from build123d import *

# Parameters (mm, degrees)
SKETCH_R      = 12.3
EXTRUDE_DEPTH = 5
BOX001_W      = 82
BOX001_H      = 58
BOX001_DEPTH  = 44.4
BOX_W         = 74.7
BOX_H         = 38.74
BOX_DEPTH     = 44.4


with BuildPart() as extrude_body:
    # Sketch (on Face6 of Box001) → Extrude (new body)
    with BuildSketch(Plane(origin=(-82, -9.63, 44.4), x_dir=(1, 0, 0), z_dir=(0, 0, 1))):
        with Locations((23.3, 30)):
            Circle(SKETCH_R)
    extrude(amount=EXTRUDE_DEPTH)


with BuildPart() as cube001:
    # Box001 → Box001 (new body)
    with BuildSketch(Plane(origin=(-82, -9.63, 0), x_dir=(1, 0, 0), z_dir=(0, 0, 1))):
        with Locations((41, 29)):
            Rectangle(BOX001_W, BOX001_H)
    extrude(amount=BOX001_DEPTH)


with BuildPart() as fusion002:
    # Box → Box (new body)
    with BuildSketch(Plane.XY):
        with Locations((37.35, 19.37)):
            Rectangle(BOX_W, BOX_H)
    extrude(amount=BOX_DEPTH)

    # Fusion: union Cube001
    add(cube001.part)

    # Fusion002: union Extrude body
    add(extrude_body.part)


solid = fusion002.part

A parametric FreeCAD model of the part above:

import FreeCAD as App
import Part
import Sketcher

V = App.Vector
Q = App.Units.Quantity

doc = App.newDocument("Part")
params = doc.addObject("Spreadsheet::Sheet", "Params")
for row, (alias, value) in enumerate([
    ("sketch1_diameter", "24.6 mm"),
    ("pad1_length", "5 mm"),
    ("sketch2_width", "82 mm"),
    ("sketch2_height", "58 mm"),
    ("pad2_length", "44.4 mm"),
    ("sketch3_width", "74.7 mm"),
    ("sketch3_height", "38.74 mm"),
    ("pad3_length", "44.4 mm"),
], start=1):
    params.set(f"A{row}", alias)
    params.set(f"B{row}", "=" + value)
    params.setAlias(f"B{row}", alias)

body = doc.addObject("PartDesign::Body", "Body")

# Sketch on XY plane
sketch1 = doc.addObject("Sketcher::SketchObject", "Sketch")
body.addObject(sketch1)
sketch1.AttachmentSupport = (doc.XY_Plane, [""])
sketch1.MapMode = "FlatFace"
sketch1.AttachmentOffset = App.Placement(V(0, 0, 44.4), App.Rotation())
sketch1.addGeometry(Part.Circle(V(-59, 20, 0), V(0, 0, 1), 12), False)
sketch1.addConstraint([
    Sketcher.Constraint("Diameter", 0, Q("24.6 mm")),
    Sketcher.Constraint("DistanceX", 0, 3, -1, 1, Q("58.7 mm")),
    Sketcher.Constraint("DistanceY", -1, 1, 0, 3, Q("20.37 mm")),
])
sketch1.setExpression("Constraints[0]", "Params.sketch1_diameter")
pad1 = doc.addObject("PartDesign::Pad", "Pad")
body.addObject(pad1)
pad1.Profile = sketch1
pad1.setExpression("Length", "Params.pad1_length")
body2 = doc.addObject("PartDesign::Body", "Body001")

# Sketch on XY plane
sketch2 = doc.addObject("Sketcher::SketchObject", "Sketch001")
body2.addObject(sketch2)
sketch2.AttachmentSupport = (doc.getObject("XY_Plane001"), [""])
sketch2.MapMode = "FlatFace"
sketch2.addGeometry([
    Part.LineSegment(V(-82, 48, 0), V(-82, -10, 0)),
    Part.LineSegment(V(-82, -10, 0), V(0, -10, 0)),
    Part.LineSegment(V(0, -10, 0), V(0, 48, 0)),
    Part.LineSegment(V(0, 48, 0), V(-82, 48, 0)),
], False)
sketch2.addConstraint([
    Sketcher.Constraint("Coincident", 0, 2, 1, 1),
    Sketcher.Constraint("Coincident", 1, 2, 2, 1),
    Sketcher.Constraint("Coincident", 2, 2, 3, 1),
    Sketcher.Constraint("Coincident", 3, 2, 0, 1),
    Sketcher.Constraint("Vertical", 0),
    Sketcher.Constraint("Horizontal", 1),
    Sketcher.Constraint("Vertical", 2),
    Sketcher.Constraint("Horizontal", 3),
    Sketcher.Constraint("PointOnObject", 1, 2, -2),
    Sketcher.Constraint("DistanceX", 1, 1, 1, 2, Q("82 mm")),
    Sketcher.Constraint("DistanceY", 0, 2, 0, 1, Q("58 mm")),
    Sketcher.Constraint("DistanceY", 0, 2, -1, 1, Q("9.63 mm")),
])
sketch2.setExpression("Constraints[9]", "Params.sketch2_width")
sketch2.setExpression("Constraints[10]", "Params.sketch2_height")
pad2 = doc.addObject("PartDesign::Pad", "Pad001")
body2.addObject(pad2)
pad2.Profile = sketch2
pad2.setExpression("Length", "Params.pad2_length")
body3 = doc.addObject("PartDesign::Body", "Body002")

# Sketch on XY plane
sketch3 = doc.addObject("Sketcher::SketchObject", "Sketch002")
body3.addObject(sketch3)
sketch3.AttachmentSupport = (doc.getObject("XY_Plane002"), [""])
sketch3.MapMode = "FlatFace"
sketch3.addGeometry([
    Part.LineSegment(V(0, 39, 0), V(0, 0, 0)),
    Part.LineSegment(V(0, 0, 0), V(75, 0, 0)),
    Part.LineSegment(V(75, 0, 0), V(75, 39, 0)),
    Part.LineSegment(V(75, 39, 0), V(0, 39, 0)),
], False)
sketch3.addConstraint([
    Sketcher.Constraint("Coincident", 0, 2, 1, 1),
    Sketcher.Constraint("Coincident", 1, 2, 2, 1),
    Sketcher.Constraint("Coincident", 2, 2, 3, 1),
    Sketcher.Constraint("Coincident", 3, 2, 0, 1),
    Sketcher.Constraint("Vertical", 0),
    Sketcher.Constraint("Horizontal", 1),
    Sketcher.Constraint("Vertical", 2),
    Sketcher.Constraint("Horizontal", 3),
    Sketcher.Constraint("Coincident", 0, 2, -1, 1),
    Sketcher.Constraint("DistanceX", 1, 1, 1, 2, Q("74.7 mm")),
    Sketcher.Constraint("DistanceY", 0, 2, 0, 1, Q("38.74 mm")),
])
sketch3.setExpression("Constraints[9]", "Params.sketch3_width")
sketch3.setExpression("Constraints[10]", "Params.sketch3_height")
pad3 = doc.addObject("PartDesign::Pad", "Pad002")
body3.addObject(pad3)
pad3.Profile = sketch3
pad3.setExpression("Length", "Params.pad3_length")
doc.recompute()

boolean = doc.addObject("PartDesign::Boolean", "Boolean")
body3.addObject(boolean)
boolean.Type = "Fuse"
boolean.addObjects([body2])
doc.recompute()

boolean2 = doc.addObject("PartDesign::Boolean", "Boolean001")
body3.addObject(boolean2)
boolean2.Type = "Fuse"
boolean2.addObjects([body])

doc.recompute()
